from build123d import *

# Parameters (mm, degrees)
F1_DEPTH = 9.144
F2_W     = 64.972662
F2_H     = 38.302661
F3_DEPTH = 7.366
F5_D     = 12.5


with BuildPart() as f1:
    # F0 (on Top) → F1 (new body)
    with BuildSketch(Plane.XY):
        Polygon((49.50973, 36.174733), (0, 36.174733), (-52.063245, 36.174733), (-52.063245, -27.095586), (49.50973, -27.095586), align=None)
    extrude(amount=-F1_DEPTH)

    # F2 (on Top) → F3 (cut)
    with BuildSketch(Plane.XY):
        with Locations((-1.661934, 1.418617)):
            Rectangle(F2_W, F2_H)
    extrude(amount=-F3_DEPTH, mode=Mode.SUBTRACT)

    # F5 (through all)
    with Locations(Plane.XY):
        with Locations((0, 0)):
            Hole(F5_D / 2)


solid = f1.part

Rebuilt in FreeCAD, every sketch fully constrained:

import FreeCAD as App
import Part
import Sketcher
from FreeCAD import Vector
Q = App.Units.Quantity

doc = App.newDocument("Part")
body = doc.addObject("PartDesign::Body", "Body")

sketch1 = body.newObject("Sketcher::SketchObject", "Sketch")
sketch1.AttachmentSupport = (doc.getObject("XY_Plane"), [""])
sketch1.MapMode = "FlatFace"
sketch1.addGeometry(Part.LineSegment(Vector(50, 36, 0), Vector(-52, 36, 0)), False)
sketch1.addGeometry(Part.LineSegment(Vector(-52, 36, 0), Vector(-52, -27, 0)), False)
sketch1.addGeometry(Part.LineSegment(Vector(-52, -27, 0), Vector(50, -27, 0)), False)
sketch1.addGeometry(Part.LineSegment(Vector(50, -27, 0), Vector(50, 36, 0)), False)
sketch1.addConstraint(Sketcher.Constraint("Coincident", 0, 2, 1, 1))
sketch1.addConstraint(Sketcher.Constraint("Coincident", 1, 2, 2, 1))
sketch1.addConstraint(Sketcher.Constraint("Coincident", 2, 2, 3, 1))
sketch1.addConstraint(Sketcher.Constraint("Coincident", 3, 2, 0, 1))
sketch1.addConstraint(Sketcher.Constraint("Horizontal", 0))
sketch1.addConstraint(Sketcher.Constraint("Vertical", 1))
sketch1.addConstraint(Sketcher.Constraint("Horizontal", 2))
sketch1.addConstraint(Sketcher.Constraint("Vertical", 3))
sketch1.addConstraint(Sketcher.Constraint("DistanceY", 1, 2, 1, 1, 63.270319))
sketch1.addConstraint(Sketcher.Constraint("DistanceX", 0, 2, 0, 1, 101.572975))
sketch1.addConstraint(Sketcher.Constraint("DistanceX", -1, 1, 2, 2, 49.50973))
sketch1.addConstraint(Sketcher.Constraint("DistanceY", -1, 1, 0, 2, 36.174733))
pad1 = body.newObject("PartDesign::Pad", "Pad")
pad1.Profile = sketch1
pad1.Length = Q("0.36 in")
pad1.Reversed = True

sketch2 = body.newObject("Sketcher::SketchObject", "Sketch001")
sketch2.AttachmentSupport = (doc.getObject("XY_Plane"), [""])
sketch2.MapMode = "FlatFace"
sketch2.addGeometry(Part.LineSegment(Vector(-34, 21, 0), Vector(-34, -18, 0)), False)
sketch2.addGeometry(Part.LineSegment(Vector(-34, -18, 0), Vector(31, -18, 0)), False)
sketch2.addGeometry(Part.LineSegment(Vector(31, -18, 0), Vector(31, 21, 0)), False)
sketch2.addGeometry(Part.LineSegment(Vector(31, 21, 0), Vector(-34, 21, 0)), False)
sketch2.addConstraint(Sketcher.Constraint("Coincident", 0, 2, 1, 1))
sketch2.addConstraint(Sketcher.Constraint("Coincident", 1, 2, 2, 1))
sketch2.addConstraint(Sketcher.Constraint("Coincident", 2, 2, 3, 1))
sketch2.addConstraint(Sketcher.Constraint("Coincident", 3, 2, 0, 1))
sketch2.addConstraint(Sketcher.Constraint("Vertical", 0))
sketch2.addConstraint(Sketcher.Constraint("Horizontal", 1))
sketch2.addConstraint(Sketcher.Constraint("Vertical", 2))
sketch2.addConstraint(Sketcher.Constraint("Horizontal", 3))
sketch2.addConstraint(Sketcher.Constraint("DistanceX", 1, 1, 1, 2, 64.972662))
sketch2.addConstraint(Sketcher.Constraint("DistanceY", 0, 2, 0, 1, 38.302661))
sketch2.addConstraint(Sketcher.Constraint("DistanceX", 0, 2, -1, 1, 34.148265))
sketch2.addConstraint(Sketcher.Constraint("DistanceY", 0, 2, -1, 1, 17.732713))
pocket1 = body.newObject("PartDesign::Pocket", "Pocket")
pocket1.Profile = sketch2
pocket1.Length = Q("0.29 in")

sketch3 = body.newObject("Sketcher::SketchObject", "Sketch002")
sketch3.AttachmentSupport = (doc.getObject("XY_Plane"), [""])
sketch3.MapMode = "FlatFace"
sketch3.addGeometry(Part.Circle(Vector(0, 0, 0), Vector(0, 0, 1), 6), False)
sketch3.addConstraint(Sketcher.Constraint("Coincident", 0, 3, -1, 1))
sketch3.addConstraint(Sketcher.Constraint("Diameter", 0, 12.5))
doc.recompute()
hole = body.newObject("PartDesign::Hole", "Hole")
hole.Profile = sketch3
hole.ThreadType = "None"
hole.Diameter = 12.5
hole.DepthType = "ThroughAll"

doc.recompute()
